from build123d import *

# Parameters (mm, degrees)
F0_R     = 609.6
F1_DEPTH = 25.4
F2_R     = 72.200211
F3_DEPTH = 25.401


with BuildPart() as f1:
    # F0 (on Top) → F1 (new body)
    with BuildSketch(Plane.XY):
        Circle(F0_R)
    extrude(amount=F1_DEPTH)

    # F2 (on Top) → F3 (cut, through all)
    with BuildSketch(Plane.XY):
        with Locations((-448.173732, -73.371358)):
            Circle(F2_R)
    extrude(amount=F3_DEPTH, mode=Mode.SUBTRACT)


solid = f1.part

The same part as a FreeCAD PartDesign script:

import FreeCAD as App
import Part
import Sketcher
from FreeCAD import Vector
Q = App.Units.Quantity

doc = App.newDocument("Part")
params = doc.addObject("Spreadsheet::Sheet", "Params")
for row, (alias, value) in enumerate([
    ("sketch1_diameter", "48 in"),
    ("pad1_length", "1 in"),
], start=1):
    params.set(f"A{row}", alias)
    params.set(f"B{row}", "=" + value)
    params.setAlias(f"B{row}", alias)

body = doc.addObject("PartDesign::Body", "Body")

sketch1 = doc.addObject("Sketcher::SketchObject", "Sketch")
body.addObject(sketch1)
sketch1.AttachmentSupport = (doc.XY_Plane, [""])
sketch1.MapMode = "FlatFace"
sketch1.addGeometry(Part.Circle(Vector(0, 0, 0), Vector(0, 0, 1), 610), False)
sketch1.addConstraint(Sketcher.Constraint("Coincident", 0, 3, -1, 1))
sketch1.addConstraint(Sketcher.Constraint("Diameter", 0, Q("48 in")))
sketch1.setExpression("Constraints[1]", "Params.sketch1_diameter")
pad1 = doc.addObject("PartDesign::Pad", "Pad")
body.addObject(pad1)
pad1.Profile = sketch1
pad1.setExpression("Length", "Params.pad1_length")

sketch2 = doc.addObject("Sketcher::SketchObject", "Sketch001")
body.addObject(sketch2)
sketch2.AttachmentSupport = (doc.XY_Plane, [""])
sketch2.MapMode = "FlatFace"
sketch2.addGeometry(Part.Circle(Vector(-448, -73, 0), Vector(0, 0, 1), 72), False)
sketch2.addConstraint(Sketcher.Constraint("Diameter", 0, Q("144.400422 mm")))
sketch2.addConstraint(Sketcher.Constraint("DistanceX", 0, 3, -1, 1, Q("448.173732 mm")))
sketch2.addConstraint(Sketcher.Constraint("DistanceY", 0, 3, -1, 1, Q("73.371358 mm")))
pocket1 = doc.addObject("PartDesign::Pocket", "Pocket")
body.addObject(pocket1)
pocket1.Profile = sketch2
pocket1.Type = "ThroughAll"
pocket1.Reversed = True

doc.recompute()
